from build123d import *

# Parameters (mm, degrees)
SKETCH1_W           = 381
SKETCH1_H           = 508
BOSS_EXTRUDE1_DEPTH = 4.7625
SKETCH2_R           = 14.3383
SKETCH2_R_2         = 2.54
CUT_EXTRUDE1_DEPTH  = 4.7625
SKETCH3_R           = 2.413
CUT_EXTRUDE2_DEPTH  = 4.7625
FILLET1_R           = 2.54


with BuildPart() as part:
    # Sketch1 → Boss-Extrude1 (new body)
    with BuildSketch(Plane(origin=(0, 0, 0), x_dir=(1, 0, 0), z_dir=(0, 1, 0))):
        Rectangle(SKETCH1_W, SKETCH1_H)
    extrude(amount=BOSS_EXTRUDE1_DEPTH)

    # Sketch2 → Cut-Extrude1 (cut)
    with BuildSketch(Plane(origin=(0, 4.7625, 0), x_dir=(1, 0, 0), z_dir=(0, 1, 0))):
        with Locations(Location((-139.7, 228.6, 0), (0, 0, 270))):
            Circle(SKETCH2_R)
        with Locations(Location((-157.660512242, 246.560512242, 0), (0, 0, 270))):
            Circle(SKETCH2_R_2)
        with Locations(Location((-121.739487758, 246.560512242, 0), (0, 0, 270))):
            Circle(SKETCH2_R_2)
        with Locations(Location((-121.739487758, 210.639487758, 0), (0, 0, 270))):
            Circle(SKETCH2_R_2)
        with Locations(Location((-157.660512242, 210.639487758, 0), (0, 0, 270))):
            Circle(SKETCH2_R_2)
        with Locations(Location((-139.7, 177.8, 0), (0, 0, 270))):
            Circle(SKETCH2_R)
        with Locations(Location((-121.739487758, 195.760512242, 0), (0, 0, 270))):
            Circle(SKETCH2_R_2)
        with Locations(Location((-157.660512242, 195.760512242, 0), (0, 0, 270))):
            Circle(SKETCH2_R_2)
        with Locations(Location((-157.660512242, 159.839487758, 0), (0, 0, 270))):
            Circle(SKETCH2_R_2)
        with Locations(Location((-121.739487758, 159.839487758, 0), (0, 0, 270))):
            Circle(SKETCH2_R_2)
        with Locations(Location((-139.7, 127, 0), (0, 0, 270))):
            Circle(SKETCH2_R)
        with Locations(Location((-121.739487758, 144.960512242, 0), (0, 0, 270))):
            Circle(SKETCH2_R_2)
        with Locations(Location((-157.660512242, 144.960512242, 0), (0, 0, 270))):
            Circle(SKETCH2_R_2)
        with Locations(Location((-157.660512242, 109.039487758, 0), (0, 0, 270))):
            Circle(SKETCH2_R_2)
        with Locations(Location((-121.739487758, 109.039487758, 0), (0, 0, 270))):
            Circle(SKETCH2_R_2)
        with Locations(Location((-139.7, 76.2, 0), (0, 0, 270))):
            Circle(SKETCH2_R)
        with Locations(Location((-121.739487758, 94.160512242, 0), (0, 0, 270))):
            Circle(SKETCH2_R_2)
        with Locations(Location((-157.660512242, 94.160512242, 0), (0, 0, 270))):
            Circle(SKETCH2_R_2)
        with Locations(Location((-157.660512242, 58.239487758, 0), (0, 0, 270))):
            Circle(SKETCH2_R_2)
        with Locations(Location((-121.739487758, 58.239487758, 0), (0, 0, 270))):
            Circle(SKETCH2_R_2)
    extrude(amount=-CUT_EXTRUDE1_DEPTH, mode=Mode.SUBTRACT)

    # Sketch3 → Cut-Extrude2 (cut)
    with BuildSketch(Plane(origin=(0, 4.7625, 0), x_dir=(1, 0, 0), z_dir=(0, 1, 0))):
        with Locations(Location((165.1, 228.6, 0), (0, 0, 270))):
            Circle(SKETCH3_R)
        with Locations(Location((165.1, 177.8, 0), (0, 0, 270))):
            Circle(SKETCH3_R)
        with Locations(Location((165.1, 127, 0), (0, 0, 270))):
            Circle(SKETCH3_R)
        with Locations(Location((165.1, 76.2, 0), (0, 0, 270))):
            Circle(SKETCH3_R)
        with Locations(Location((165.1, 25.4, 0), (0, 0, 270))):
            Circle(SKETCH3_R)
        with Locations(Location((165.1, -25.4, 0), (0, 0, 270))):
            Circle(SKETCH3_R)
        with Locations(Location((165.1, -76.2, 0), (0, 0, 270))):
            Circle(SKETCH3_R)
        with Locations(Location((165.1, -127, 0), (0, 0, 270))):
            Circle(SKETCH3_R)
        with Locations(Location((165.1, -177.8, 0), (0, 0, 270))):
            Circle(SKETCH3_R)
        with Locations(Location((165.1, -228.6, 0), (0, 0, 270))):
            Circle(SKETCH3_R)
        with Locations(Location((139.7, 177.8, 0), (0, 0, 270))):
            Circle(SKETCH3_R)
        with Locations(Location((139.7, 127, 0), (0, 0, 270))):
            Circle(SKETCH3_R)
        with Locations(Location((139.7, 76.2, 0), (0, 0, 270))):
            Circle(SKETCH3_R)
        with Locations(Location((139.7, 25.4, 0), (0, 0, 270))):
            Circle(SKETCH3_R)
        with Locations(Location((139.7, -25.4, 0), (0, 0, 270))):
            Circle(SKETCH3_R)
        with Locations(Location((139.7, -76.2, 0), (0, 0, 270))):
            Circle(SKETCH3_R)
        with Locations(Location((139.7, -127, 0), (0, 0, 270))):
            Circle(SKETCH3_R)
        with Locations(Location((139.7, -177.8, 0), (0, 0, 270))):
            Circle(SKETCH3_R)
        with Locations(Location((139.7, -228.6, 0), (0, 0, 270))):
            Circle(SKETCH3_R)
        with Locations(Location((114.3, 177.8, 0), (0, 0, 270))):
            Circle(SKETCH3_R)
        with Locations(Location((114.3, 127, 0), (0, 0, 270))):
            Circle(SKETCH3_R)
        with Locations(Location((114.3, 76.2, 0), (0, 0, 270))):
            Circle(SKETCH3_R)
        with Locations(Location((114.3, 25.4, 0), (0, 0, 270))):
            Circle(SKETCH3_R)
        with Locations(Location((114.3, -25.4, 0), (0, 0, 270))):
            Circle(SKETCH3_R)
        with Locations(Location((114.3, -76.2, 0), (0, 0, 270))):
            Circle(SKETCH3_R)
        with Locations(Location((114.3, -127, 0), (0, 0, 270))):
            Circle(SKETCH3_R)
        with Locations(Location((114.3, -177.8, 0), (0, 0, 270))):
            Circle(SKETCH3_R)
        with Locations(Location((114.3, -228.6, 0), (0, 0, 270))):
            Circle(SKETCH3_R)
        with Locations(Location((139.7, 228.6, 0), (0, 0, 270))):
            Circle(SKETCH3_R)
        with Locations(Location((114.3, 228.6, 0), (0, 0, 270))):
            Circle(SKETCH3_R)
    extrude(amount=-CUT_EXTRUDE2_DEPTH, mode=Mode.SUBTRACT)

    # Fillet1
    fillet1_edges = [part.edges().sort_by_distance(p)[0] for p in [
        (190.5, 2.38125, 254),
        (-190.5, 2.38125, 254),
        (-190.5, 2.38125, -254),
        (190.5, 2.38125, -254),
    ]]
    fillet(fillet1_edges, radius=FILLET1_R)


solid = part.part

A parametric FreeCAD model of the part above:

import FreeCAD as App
import Part
import Sketcher

V = App.Vector
Q = App.Units.Quantity


def edges_at(feature, points):
    """Names of the edges that pass closest to the given points."""
    edges = feature.Shape.Edges
    near = lambda p: min(range(len(edges)), key=lambda i: edges[i].distToShape(Part.Vertex(*p))[0])
    return sorted({f"Edge{near(p) + 1}" for p in points})


def add_polygon(sketch, points):
    """Adds a closed chain of lines whose ends are joined by coincident constraints."""
    first, n = sketch.GeometryCount, len(points)
    for a, b in zip(points, points[1:] + points[:1]):
        sketch.addGeometry(Part.LineSegment(App.Vector(*a, 0), App.Vector(*b, 0)), False)
    for i in range(n):
        sketch.addConstraint(Sketcher.Constraint("Coincident", first + i, 2, first + (i + 1) % n, 1))

doc = App.newDocument("Part")
params = doc.addObject("Spreadsheet::Sheet", "Params")
for row, (alias, value) in enumerate([
    ("sketch1_width", "15 in"),
    ("sketch1_height", "20 in"),
    ("pad1_length", "0.1875 in"),
    ("sketch2_diameter", "0.2 in"),
    ("sketch2_diameter2", "1.129 in"),
    ("pocket1_length", "0.1875 in"),
    ("sketch3_diameter", "0.19 in"),
    ("pocket2_length", "0.1875 in"),
    ("fillet_radius", "0.1 in"),
], start=1):
    params.set(f"A{row}", alias)
    params.set(f"B{row}", "=" + value)
    params.setAlias(f"B{row}", alias)

body = doc.addObject("PartDesign::Body", "Body")

# Sketch on XZ plane
sketch1 = body.newObject("Sketcher::SketchObject", "Sketch")
sketch1.AttachmentSupport = (doc.getObject("XZ_Plane"), [""])
sketch1.MapMode = "FlatFace"
add_polygon(sketch1, [(-190, -254), (-190, 254), (190, 254), (190, -254)])  # lines 0-3
sketch1.addConstraint([
    Sketcher.Constraint("Vertical", 0),
    Sketcher.Constraint("Horizontal", 1),
    Sketcher.Constraint("Vertical", 2),
    Sketcher.Constraint("Horizontal", 3),
    Sketcher.Constraint("Symmetric", 0, 2, 2, 2, -1, 1),
    Sketcher.Constraint("DistanceX", 1, 1, 1, 2, Q("15 in")),
    Sketcher.Constraint("DistanceY", 0, 1, 0, 2, Q("20 in")),
])
sketch1.setExpression("Constraints[9]", "Params.sketch1_width")
sketch1.setExpression("Constraints[10]", "Params.sketch1_height")
pad1 = body.newObject("PartDesign::Pad", "Pad")
pad1.Profile = sketch1
pad1.setExpression("Length", "Params.pad1_length")
pad1.Reversed = True

# Sketch on XZ plane
sketch2 = body.newObject("Sketcher::SketchObject", "Sketch001")
sketch2.AttachmentSupport = (doc.getObject("XZ_Plane"), [""])
sketch2.MapMode = "FlatFace"
sketch2.AttachmentOffset = App.Placement(V(0, 0, -0.1875 * 25.4), App.Rotation())
sketch2.addGeometry([
    Part.Circle(V(-139.7, -228.6, 0), V(0, 0, 1), 14.3),  # 0
    Part.Circle(V(-157.7, -246.6, 0), V(0, 0, 1), 2.5),  # 1
    Part.Circle(V(-121.7, -246.6, 0), V(0, 0, 1), 2.5),  # 2
    Part.Circle(V(-121.7, -210.6, 0), V(0, 0, 1), 2.5),  # 3
    Part.Circle(V(-157.7, -210.6, 0), V(0, 0, 1), 2.5),  # 4
    Part.Circle(V(-139.7, -177.8, 0), V(0, 0, 1), 14.3),  # 5
    Part.Circle(V(-121.7, -195.8, 0), V(0, 0, 1), 2.5),  # 6
    Part.Circle(V(-157.7, -195.8, 0), V(0, 0, 1), 2.5),  # 7
    Part.Circle(V(-157.7, -159.8, 0), V(0, 0, 1), 2.5),  # 8
    Part.Circle(V(-121.7, -159.8, 0), V(0, 0, 1), 2.5),  # 9
    Part.Circle(V(-139.7, -127, 0), V(0, 0, 1), 14.3),  # 10
    Part.Circle(V(-121.7, -145, 0), V(0, 0, 1), 2.5),  # 11
    Part.Circle(V(-157.7, -145, 0), V(0, 0, 1), 2.5),  # 12
    Part.Circle(V(-157.7, -109, 0), V(0, 0, 1), 2.5),  # 13
    Part.Circle(V(-121.7, -109, 0), V(0, 0, 1), 2.5),  # 14
    Part.Circle(V(-139.7, -76.2, 0), V(0, 0, 1), 14.3),  # 15
    Part.Circle(V(-121.7, -94.2, 0), V(0, 0, 1), 2.5),  # 16
    Part.Circle(V(-157.7, -94.2, 0), V(0, 0, 1), 2.5),  # 17
    Part.Circle(V(-157.7, -58.2, 0), V(0, 0, 1), 2.5),  # 18
    Part.Circle(V(-121.7, -58.2, 0), V(0, 0, 1), 2.5),  # 19
], False)
sketch2.addConstraint([
    Sketcher.Constraint("Equal", 1, 2),
    Sketcher.Constraint("Equal", 2, 3),
    Sketcher.Constraint("Equal", 3, 4),
    Sketcher.Constraint("Equal", 0, 5),
    Sketcher.Constraint("Equal", 4, 6),
    Sketcher.Constraint("Equal", 6, 7),
    Sketcher.Constraint("Equal", 7, 8),
    Sketcher.Constraint("Equal", 8, 9),
    Sketcher.Constraint("Equal", 5, 10),
    Sketcher.Constraint("Equal", 9, 11),
    Sketcher.Constraint("Equal", 11, 12),
    Sketcher.Constraint("Equal", 12, 13),
    Sketcher.Constraint("Equal", 13, 14),
    Sketcher.Constraint("Equal", 10, 15),
    Sketcher.Constraint("Equal", 14, 16),
    Sketcher.Constraint("Equal", 16, 17),
    Sketcher.Constraint("Equal", 17, 18),
    Sketcher.Constraint("Equal", 18, 19),
    Sketcher.Constraint("Horizontal", 1, 3, 2, 3),
    Sketcher.Constraint("Horizontal", 3, 3, 4, 3),
    Sketcher.Constraint("Horizontal", 6, 3, 7, 3),
    Sketcher.Constraint("Horizontal", 8, 3, 9, 3),
    Sketcher.Constraint("Horizontal", 11, 3, 12, 3),
    Sketcher.Constraint("Horizontal", 13, 3, 14, 3),
    Sketcher.Constraint("Horizontal", 16, 3, 17, 3),
    Sketcher.Constraint("Horizontal", 18, 3, 19, 3),
    Sketcher.Constraint("Vertical", 2, 3, 3, 3),
    Sketcher.Constraint("Vertical", 1, 3, 4, 3),
    Sketcher.Constraint("Vertical", 0, 3, 5, 3),
    Sketcher.Constraint("Vertical", 3, 3, 6, 3),
    Sketcher.Constraint("Vertical", 4, 3, 7, 3),
    Sketcher.Constraint("Vertical", 7, 3, 8, 3),
    Sketcher.Constraint("Vertical", 6, 3, 9, 3),
    Sketcher.Constraint("Vertical", 5, 3, 10, 3),
    Sketcher.Constraint("Vertical", 9, 3, 11, 3),
    Sketcher.Constraint("Vertical", 8, 3, 12, 3),
    Sketcher.Constraint("Vertical", 12, 3, 13, 3),
    Sketcher.Constraint("Vertical", 11, 3, 14, 3),
    Sketcher.Constraint("Vertical", 10, 3, 15, 3),
    Sketcher.Constraint("Vertical", 14, 3, 16, 3),
    Sketcher.Constraint("Vertical", 13, 3, 17, 3),
    Sketcher.Constraint("Vertical", 17, 3, 18, 3),
    Sketcher.Constraint("Vertical", 16, 3, 19, 3),
    Sketcher.Constraint("Diameter", 1, Q("0.2 in")),
    Sketcher.Constraint("Diameter", 0, Q("1.129 in")),
    Sketcher.Constraint("DistanceY", 0, 3, -1, 1, Q("9 in")),
    Sketcher.Constraint("DistanceY", 5, 3, -1, 1, Q("7 in")),
    Sketcher.Constraint("DistanceY", 10, 3, -1, 1, Q("5 in")),
    Sketcher.Constraint("DistanceY", 15, 3, -1, 1, Q("3 in")),
    Sketcher.Constraint("DistanceY", 2, 3, 6, 3, Q("2 in")),
    Sketcher.Constraint("DistanceY", 4, 3, 8, 3, Q("2 in")),
    Sketcher.Constraint("DistanceY", 6, 3, 11, 3, Q("2 in")),
    Sketcher.Constraint("DistanceY", 8, 3, 13, 3, Q("2 in")),
    Sketcher.Constraint("DistanceY", 11, 3, 16, 3, Q("2 in")),
    Sketcher.Constraint("DistanceY", 13, 3, 18, 3, Q("2 in")),
    Sketcher.Constraint("DistanceX", 0, 3, -1, 1, Q("5.5 in")),
    Sketcher.Constraint("DistanceX", 1, 3, -1, 1, Q("157.660512 mm")),
    Sketcher.Constraint("DistanceY", 1, 3, -1, 1, Q("246.560512 mm")),
    Sketcher.Constraint("DistanceX", 2, 3, -1, 1, Q("121.739488 mm")),
    Sketcher.Constraint("DistanceY", 3, 3, -1, 1, Q("210.639488 mm")),
])
sketch2.setExpression("Constraints[43]", "Params.sketch2_diameter")
sketch2.setExpression("Constraints[44]", "Params.sketch2_diameter2")
pocket1 = body.newObject("PartDesign::Pocket", "Pocket")
pocket1.Profile = sketch2
pocket1.setExpression("Length", "Params.pocket1_length")
pocket1.Reversed = True

# Sketch on XZ plane
sketch3 = body.newObject("Sketcher::SketchObject", "Sketch002")
sketch3.AttachmentSupport = (doc.getObject("XZ_Plane"), [""])
sketch3.MapMode = "FlatFace"
sketch3.AttachmentOffset = App.Placement(V(0, 0, -0.1875 * 25.4), App.Rotation())
sketch3.addGeometry([
    Part.Circle(V(165.1, -228.6, 0), V(0, 0, 1), 2.4),  # 0
    Part.Circle(V(165.1, -177.8, 0), V(0, 0, 1), 2.4),  # 1
    Part.Circle(V(165.1, -127, 0), V(0, 0, 1), 2.4),  # 2
    Part.Circle(V(165.1, -76.2, 0), V(0, 0, 1), 2.4),  # 3
    Part.Circle(V(165.1, -25.4, 0), V(0, 0, 1), 2.4),  # 4
    Part.Circle(V(165.1, 25.4, 0), V(0, 0, 1), 2.4),  # 5
    Part.Circle(V(165.1, 76.2, 0), V(0, 0, 1), 2.4),  # 6
    Part.Circle(V(165.1, 127, 0), V(0, 0, 1), 2.4),  # 7
    Part.Circle(V(165.1, 177.8, 0), V(0, 0, 1), 2.4),  # 8
    Part.Circle(V(165.1, 228.6, 0), V(0, 0, 1), 2.4),  # 9
    Part.Circle(V(139.7, -177.8, 0), V(0, 0, 1), 2.4),  # 10
    Part.Circle(V(139.7, -127, 0), V(0, 0, 1), 2.4),  # 11
    Part.Circle(V(139.7, -76.2, 0), V(0, 0, 1), 2.4),  # 12
    Part.Circle(V(139.7, -25.4, 0), V(0, 0, 1), 2.4),  # 13
    Part.Circle(V(139.7, 25.4, 0), V(0, 0, 1), 2.4),  # 14
    Part.Circle(V(139.7, 76.2, 0), V(0, 0, 1), 2.4),  # 15
    Part.Circle(V(139.7, 127, 0), V(0, 0, 1), 2.4),  # 16
    Part.Circle(V(139.7, 177.8, 0), V(0, 0, 1), 2.4),  # 17
    Part.Circle(V(139.7, 228.6, 0), V(0, 0, 1), 2.4),  # 18
    Part.Circle(V(114.3, -177.8, 0), V(0, 0, 1), 2.4),  # 19
    Part.Circle(V(114.3, -127, 0), V(0, 0, 1), 2.4),  # 20
    Part.Circle(V(114.3, -76.2, 0), V(0, 0, 1), 2.4),  # 21
    Part.Circle(V(114.3, -25.4, 0), V(0, 0, 1), 2.4),  # 22
    Part.Circle(V(114.3, 25.4, 0), V(0, 0, 1), 2.4),  # 23
    Part.Circle(V(114.3, 76.2, 0), V(0, 0, 1), 2.4),  # 24
    Part.Circle(V(114.3, 127, 0), V(0, 0, 1), 2.4),  # 25
    Part.Circle(V(114.3, 177.8, 0), V(0, 0, 1), 2.4),  # 26
    Part.Circle(V(114.3, 228.6, 0), V(0, 0, 1), 2.4),  # 27
    Part.Circle(V(139.7, -228.6, 0), V(0, 0, 1), 2.4),  # 28
    Part.Circle(V(114.3, -228.6, 0), V(0, 0, 1), 2.4),  # 29
], False)
sketch3.addConstraint([
    Sketcher.Constraint("Equal", 0, 1),
    Sketcher.Constraint("Equal", 1, 2),
    Sketcher.Constraint("Equal", 2, 3),
    Sketcher.Constraint("Equal", 3, 4),
    Sketcher.Constraint("Equal", 4, 5),
    Sketcher.Constraint("Equal", 5, 6),
    Sketcher.Constraint("Equal", 6, 7),
    Sketcher.Constraint("Equal", 7, 8),
    Sketcher.Constraint("Equal", 8, 9),
    Sketcher.Constraint("Equal", 9, 10),
    Sketcher.Constraint("Equal", 10, 11),
    Sketcher.Constraint("Equal", 11, 12),
    Sketcher.Constraint("Equal", 12, 13),
    Sketcher.Constraint("Equal", 13, 14),
    Sketcher.Constraint("Equal", 14, 15),
    Sketcher.Constraint("Equal", 15, 16),
    Sketcher.Constraint("Equal", 16, 17),
    Sketcher.Constraint("Equal", 17, 18),
    Sketcher.Constraint("Equal", 18, 19),
    Sketcher.Constraint("Equal", 19, 20),
    Sketcher.Constraint("Equal", 20, 21),
    Sketcher.Constraint("Equal", 21, 22),
    Sketcher.Constraint("Equal", 22, 23),
    Sketcher.Constraint("Equal", 23, 24),
    Sketcher.Constraint("Equal", 24, 25),
    Sketcher.Constraint("Equal", 25, 26),
    Sketcher.Constraint("Equal", 26, 27),
    Sketcher.Constraint("Equal", 27, 28),
    Sketcher.Constraint("Equal", 28, 29),
    Sketcher.Constraint("Symmetric", 4, 3, 5, 3, -1),
    Sketcher.Constraint("Symmetric", 3, 3, 6, 3, -1),
    Sketcher.Constraint("Symmetric", 2, 3, 7, 3, -1),
    Sketcher.Constraint("Symmetric", 1, 3, 8, 3, -1),
    Sketcher.Constraint("Symmetric", 0, 3, 9, 3, -1),
    Sketcher.Constraint("Symmetric", 13, 3, 14, 3, -1),
    Sketcher.Constraint("Symmetric", 12, 3, 15, 3, -1),
    Sketcher.Constraint("Symmetric", 11, 3, 16, 3, -1),
    Sketcher.Constraint("Symmetric", 10, 3, 17, 3, -1),
    Sketcher.Constraint("Symmetric", 22, 3, 23, 3, -1),
    Sketcher.Constraint("Symmetric", 21, 3, 24, 3, -1),
    Sketcher.Constraint("Symmetric", 20, 3, 25, 3, -1),
    Sketcher.Constraint("Symmetric", 19, 3, 26, 3, -1),
    Sketcher.Constraint("Symmetric", 18, 3, 28, 3, -1),
    Sketcher.Constraint("Symmetric", 27, 3, 29, 3, -1),
    Sketcher.Constraint("Horizontal", 1, 3, 10, 3),
    Sketcher.Constraint("Horizontal", 2, 3, 11, 3),
    Sketcher.Constraint("Horizontal", 3, 3, 12, 3),
    Sketcher.Constraint("Horizontal", 4, 3, 13, 3),
    Sketcher.Constraint("Horizontal", 9, 3, 18, 3),
    Sketcher.Constraint("Horizontal", 10, 3, 19, 3),
    Sketcher.Constraint("Horizontal", 11, 3, 20, 3),
    Sketcher.Constraint("Horizontal", 12, 3, 21, 3),
    Sketcher.Constraint("Horizontal", 13, 3, 22, 3),
    Sketcher.Constraint("Horizontal", 18, 3, 27, 3),
    Sketcher.Constraint("Vertical", 0, 3, 1, 3),
    Sketcher.Constraint("Vertical", 1, 3, 2, 3),
    Sketcher.Constraint("Vertical", 2, 3, 3, 3),
    Sketcher.Constraint("Vertical", 3, 3, 4, 3),
    Sketcher.Constraint("Vertical", 10, 3, 11, 3),
    Sketcher.Constraint("Vertical", 11, 3, 12, 3),
    Sketcher.Constraint("Vertical", 12, 3, 13, 3),
    Sketcher.Constraint("Vertical", 17, 3, 18, 3),
    Sketcher.Constraint("Vertical", 19, 3, 20, 3),
    Sketcher.Constraint("Vertical", 20, 3, 21, 3),
    Sketcher.Constraint("Vertical", 21, 3, 22, 3),
    Sketcher.Constraint("Vertical", 26, 3, 27, 3),
    Sketcher.Constraint("Diameter", 0, Q("0.19 in")),
    Sketcher.Constraint("DistanceY", 0, 3, -1, 1, Q("9 in")),
    Sketcher.Constraint("DistanceY", 1, 3, -1, 1, Q("7 in")),
    Sketcher.Constraint("DistanceY", 2, 3, -1, 1, Q("5 in")),
    Sketcher.Constraint("DistanceY", 3, 3, -1, 1, Q("3 in")),
    Sketcher.Constraint("DistanceY", 4, 3, -1, 1, Q("1 in")),
    Sketcher.Constraint("DistanceX", 10, 3, 1, 3, Q("1 in")),
    Sketcher.Constraint("DistanceX", 19, 3, 10, 3, Q("1 in")),
    Sketcher.Constraint("DistanceX", -1, 1, 0, 3, Q("6.5 in")),
])
sketch3.setExpression("Constraints[66]", "Params.sketch3_diameter")
pocket2 = body.newObject("PartDesign::Pocket", "Pocket001")
pocket2.Profile = sketch3
pocket2.setExpression("Length", "Params.pocket2_length")
pocket2.Reversed = True
doc.recompute()

fillet = body.newObject("PartDesign::Fillet", "Fillet")
fillet.Base = (pocket2, edges_at(pocket2, [
    (190.5, 2.381, 254),
    (-190.5, 2.381, 254),
    (-190.5, 2.381, -254),
    (190.5, 2.381, -254),
]))
fillet.setExpression("Radius", "Params.fillet_radius")

doc.recompute()
